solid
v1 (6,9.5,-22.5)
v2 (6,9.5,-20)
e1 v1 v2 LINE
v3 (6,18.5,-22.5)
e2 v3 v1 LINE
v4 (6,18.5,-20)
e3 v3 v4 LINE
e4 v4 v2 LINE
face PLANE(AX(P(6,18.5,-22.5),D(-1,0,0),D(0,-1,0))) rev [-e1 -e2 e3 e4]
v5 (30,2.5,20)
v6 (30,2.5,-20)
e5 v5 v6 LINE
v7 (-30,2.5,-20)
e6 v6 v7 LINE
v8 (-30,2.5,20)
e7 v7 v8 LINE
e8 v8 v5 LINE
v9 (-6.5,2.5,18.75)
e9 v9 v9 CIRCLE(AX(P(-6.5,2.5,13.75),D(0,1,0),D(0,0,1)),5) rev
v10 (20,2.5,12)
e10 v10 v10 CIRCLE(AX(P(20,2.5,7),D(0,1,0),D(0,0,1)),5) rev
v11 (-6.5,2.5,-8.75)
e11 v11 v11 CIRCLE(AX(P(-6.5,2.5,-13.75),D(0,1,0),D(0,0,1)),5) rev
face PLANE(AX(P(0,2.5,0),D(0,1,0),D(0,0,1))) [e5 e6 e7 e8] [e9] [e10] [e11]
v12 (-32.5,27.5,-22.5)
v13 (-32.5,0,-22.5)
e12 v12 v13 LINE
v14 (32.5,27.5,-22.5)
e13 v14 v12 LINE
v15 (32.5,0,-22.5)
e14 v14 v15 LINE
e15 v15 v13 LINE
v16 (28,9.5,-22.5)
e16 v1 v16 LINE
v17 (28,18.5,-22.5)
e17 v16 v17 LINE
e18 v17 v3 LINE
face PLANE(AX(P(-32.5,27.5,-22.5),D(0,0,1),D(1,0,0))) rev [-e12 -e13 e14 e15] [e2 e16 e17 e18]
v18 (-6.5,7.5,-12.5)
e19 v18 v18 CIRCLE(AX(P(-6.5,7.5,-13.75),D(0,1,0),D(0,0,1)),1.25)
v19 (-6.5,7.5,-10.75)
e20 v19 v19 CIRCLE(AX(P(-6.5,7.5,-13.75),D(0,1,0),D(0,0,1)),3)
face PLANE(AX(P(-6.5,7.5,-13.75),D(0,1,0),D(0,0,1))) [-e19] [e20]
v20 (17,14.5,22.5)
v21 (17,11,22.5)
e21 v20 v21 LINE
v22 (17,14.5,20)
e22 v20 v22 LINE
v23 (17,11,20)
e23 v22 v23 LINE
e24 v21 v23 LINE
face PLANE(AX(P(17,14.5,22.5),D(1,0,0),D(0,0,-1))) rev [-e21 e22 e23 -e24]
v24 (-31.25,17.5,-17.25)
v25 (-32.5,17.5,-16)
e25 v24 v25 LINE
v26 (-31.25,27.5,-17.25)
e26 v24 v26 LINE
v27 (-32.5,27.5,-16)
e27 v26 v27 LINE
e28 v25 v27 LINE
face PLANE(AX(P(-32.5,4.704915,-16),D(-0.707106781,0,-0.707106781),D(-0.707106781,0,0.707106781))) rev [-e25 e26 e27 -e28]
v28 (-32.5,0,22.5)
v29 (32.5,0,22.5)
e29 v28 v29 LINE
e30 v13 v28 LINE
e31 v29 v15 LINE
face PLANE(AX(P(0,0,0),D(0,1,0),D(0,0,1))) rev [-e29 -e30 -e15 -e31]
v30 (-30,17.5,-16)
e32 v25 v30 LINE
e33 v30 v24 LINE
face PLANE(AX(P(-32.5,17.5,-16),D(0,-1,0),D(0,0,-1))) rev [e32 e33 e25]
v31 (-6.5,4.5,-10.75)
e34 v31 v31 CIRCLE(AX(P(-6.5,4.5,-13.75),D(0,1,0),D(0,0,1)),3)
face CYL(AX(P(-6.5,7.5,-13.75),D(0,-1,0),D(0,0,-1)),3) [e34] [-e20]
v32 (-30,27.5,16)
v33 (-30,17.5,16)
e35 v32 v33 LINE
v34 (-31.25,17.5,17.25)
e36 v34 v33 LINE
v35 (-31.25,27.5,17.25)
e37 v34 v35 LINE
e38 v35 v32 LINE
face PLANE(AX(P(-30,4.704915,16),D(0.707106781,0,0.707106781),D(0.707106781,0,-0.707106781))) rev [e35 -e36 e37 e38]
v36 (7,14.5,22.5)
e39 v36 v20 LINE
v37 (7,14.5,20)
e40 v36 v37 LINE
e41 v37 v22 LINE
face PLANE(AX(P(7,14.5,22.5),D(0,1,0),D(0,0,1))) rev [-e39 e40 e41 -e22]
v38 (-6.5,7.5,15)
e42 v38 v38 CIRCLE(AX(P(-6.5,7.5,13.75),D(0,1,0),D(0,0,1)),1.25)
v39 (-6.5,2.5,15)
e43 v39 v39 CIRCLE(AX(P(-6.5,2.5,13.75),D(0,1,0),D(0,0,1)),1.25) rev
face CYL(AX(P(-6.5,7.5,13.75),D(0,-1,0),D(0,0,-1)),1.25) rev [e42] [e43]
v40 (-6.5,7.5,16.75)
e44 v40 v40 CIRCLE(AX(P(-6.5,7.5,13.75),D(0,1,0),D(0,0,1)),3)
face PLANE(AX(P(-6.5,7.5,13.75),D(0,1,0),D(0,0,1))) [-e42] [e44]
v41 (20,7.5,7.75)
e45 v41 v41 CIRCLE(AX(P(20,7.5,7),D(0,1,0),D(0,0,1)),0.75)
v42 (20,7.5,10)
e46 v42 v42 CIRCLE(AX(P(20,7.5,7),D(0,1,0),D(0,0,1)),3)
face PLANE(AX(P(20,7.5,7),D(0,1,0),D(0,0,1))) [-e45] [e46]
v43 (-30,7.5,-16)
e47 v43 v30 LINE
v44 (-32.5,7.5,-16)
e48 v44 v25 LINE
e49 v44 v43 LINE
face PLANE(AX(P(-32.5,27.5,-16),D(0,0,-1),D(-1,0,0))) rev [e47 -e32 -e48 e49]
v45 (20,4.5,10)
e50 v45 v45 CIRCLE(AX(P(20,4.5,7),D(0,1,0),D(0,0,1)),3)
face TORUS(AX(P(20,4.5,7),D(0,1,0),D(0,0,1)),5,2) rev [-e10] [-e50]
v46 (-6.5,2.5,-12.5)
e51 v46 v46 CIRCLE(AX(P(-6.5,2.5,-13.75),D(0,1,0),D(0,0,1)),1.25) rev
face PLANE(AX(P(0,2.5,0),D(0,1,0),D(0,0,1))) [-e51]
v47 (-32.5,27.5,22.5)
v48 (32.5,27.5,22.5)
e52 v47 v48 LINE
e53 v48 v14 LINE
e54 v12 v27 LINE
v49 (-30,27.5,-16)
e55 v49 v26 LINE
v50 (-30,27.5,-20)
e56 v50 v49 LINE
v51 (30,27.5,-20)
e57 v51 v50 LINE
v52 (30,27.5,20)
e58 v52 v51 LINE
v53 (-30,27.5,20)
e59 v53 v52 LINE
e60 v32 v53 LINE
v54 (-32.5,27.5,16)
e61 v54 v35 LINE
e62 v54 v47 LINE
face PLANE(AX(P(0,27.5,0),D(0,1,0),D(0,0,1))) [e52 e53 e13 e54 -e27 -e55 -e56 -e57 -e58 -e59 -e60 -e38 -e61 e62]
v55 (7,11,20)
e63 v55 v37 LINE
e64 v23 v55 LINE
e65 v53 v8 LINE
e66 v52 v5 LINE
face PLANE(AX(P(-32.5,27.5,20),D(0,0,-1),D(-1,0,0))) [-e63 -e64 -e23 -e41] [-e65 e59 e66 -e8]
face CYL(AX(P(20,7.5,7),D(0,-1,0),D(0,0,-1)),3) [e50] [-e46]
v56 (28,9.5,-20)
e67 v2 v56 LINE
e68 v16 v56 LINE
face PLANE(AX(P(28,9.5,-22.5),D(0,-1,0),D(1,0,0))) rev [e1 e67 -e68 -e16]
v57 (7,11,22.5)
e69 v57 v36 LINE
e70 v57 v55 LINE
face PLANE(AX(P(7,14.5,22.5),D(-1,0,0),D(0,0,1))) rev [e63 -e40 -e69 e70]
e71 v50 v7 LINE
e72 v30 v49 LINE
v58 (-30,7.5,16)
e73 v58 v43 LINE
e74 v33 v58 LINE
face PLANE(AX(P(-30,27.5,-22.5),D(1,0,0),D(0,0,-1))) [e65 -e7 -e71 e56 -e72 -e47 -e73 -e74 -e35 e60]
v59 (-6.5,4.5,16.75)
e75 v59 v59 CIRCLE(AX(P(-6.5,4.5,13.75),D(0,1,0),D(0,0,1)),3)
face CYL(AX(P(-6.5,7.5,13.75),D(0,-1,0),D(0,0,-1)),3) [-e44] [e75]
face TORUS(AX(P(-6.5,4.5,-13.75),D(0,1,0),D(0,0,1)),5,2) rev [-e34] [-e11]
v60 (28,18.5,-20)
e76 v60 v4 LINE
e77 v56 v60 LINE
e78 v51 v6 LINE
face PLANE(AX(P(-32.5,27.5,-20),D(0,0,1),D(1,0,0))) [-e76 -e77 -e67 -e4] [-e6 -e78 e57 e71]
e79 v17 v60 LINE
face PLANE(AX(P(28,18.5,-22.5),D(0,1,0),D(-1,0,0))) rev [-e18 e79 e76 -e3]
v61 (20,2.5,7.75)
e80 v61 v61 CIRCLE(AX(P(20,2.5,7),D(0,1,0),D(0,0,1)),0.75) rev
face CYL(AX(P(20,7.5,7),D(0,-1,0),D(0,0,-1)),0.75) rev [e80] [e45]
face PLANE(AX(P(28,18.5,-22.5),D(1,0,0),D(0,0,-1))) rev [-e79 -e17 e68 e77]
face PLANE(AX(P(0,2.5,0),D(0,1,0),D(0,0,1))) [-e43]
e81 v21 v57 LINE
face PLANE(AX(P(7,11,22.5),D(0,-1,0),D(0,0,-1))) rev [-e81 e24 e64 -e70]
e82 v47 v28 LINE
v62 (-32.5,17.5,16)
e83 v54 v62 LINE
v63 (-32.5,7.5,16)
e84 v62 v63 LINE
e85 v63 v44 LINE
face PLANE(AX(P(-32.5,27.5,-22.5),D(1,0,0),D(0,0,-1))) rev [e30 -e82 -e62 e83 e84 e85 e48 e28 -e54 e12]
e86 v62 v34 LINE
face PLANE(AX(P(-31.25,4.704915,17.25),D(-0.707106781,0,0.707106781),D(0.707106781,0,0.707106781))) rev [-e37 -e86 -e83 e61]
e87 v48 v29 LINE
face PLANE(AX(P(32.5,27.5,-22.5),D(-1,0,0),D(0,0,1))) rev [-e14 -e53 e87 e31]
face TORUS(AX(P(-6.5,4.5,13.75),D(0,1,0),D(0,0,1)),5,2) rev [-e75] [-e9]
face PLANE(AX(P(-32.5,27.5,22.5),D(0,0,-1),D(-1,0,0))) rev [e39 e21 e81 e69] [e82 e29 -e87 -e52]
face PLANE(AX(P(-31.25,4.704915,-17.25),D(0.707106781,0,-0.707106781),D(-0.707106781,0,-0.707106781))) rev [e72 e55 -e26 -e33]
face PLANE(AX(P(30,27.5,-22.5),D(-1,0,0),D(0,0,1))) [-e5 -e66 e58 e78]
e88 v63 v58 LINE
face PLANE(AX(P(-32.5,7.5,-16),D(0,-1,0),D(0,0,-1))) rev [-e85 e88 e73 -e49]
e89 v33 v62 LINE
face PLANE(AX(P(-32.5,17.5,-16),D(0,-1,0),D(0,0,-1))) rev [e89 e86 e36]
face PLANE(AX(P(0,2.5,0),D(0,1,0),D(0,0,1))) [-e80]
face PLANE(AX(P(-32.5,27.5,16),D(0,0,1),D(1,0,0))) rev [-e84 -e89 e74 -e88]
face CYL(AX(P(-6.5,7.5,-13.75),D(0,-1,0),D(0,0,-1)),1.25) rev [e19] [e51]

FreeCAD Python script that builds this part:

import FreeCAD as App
import Part
import Sketcher
from FreeCAD import Vector
Q = App.Units.Quantity


def edges_at(feature, points):
    """Names of the edges that pass closest to the given points."""
    edges = feature.Shape.Edges
    near = lambda p: min(range(len(edges)), key=lambda i: edges[i].distToShape(Part.Vertex(*p))[0])
    return sorted({f"Edge{near(p) + 1}" for p in points})


def faces_at(feature, points):
    """Names of the faces that lie closest to the given points."""
    faces = feature.Shape.Faces
    near = lambda p: min(range(len(faces)), key=lambda i: faces[i].distToShape(Part.Vertex(*p))[0])
    return sorted({f"Face{near(p) + 1}" for p in points})

doc = App.newDocument("Part")
body = doc.addObject("PartDesign::Body", "Body")

sketch1 = body.newObject("Sketcher::SketchObject", "Sketch")
sketch1.AttachmentSupport = (doc.getObject("XZ_Plane"), [""])
sketch1.MapMode = "FlatFace"
sketch1.addGeometry([
    Part.LineSegment(Vector(-32, -22, 0), Vector(-32, 22, 0)),
    Part.LineSegment(Vector(-32, 22, 0), Vector(32, 22, 0)),
    Part.LineSegment(Vector(32, 22, 0), Vector(32, -22, 0)),
    Part.LineSegment(Vector(32, -22, 0), Vector(-32, -22, 0)),
], False)
sketch1.addConstraint([
    Sketcher.Constraint("Coincident", 0, 2, 1, 1),
    Sketcher.Constraint("Coincident", 1, 2, 2, 1),
    Sketcher.Constraint("Coincident", 2, 2, 3, 1),
    Sketcher.Constraint("Coincident", 3, 2, 0, 1),
    Sketcher.Constraint("Vertical", 0),
    Sketcher.Constraint("Horizontal", 1),
    Sketcher.Constraint("Vertical", 2),
    Sketcher.Constraint("Horizontal", 3),
    Sketcher.Constraint("Symmetric", 0, 2, 2, 2, -1, 1),
    Sketcher.Constraint("DistanceX", 1, 1, 1, 2, Q("65 mm")),
    Sketcher.Constraint("DistanceY", 0, 1, 0, 2, Q("45 mm")),
])
pad1 = body.newObject("PartDesign::Pad", "Pad")
pad1.Profile = sketch1
pad1.Length = 27.5
pad1.Reversed = True
doc.recompute()

thickness = body.newObject("PartDesign::Thickness", "Thickness")
thickness.Base = (pad1, faces_at(pad1, [(0, 27.5, 0)]))
thickness.Value = 2.5
thickness.Reversed = True
thickness.Join = "Intersection"

sketch2 = body.newObject("Sketcher::SketchObject", "Sketch001")
sketch2.AttachmentSupport = (doc.getObject("YZ_Plane"), [""])
sketch2.MapMode = "FlatFace"
sketch2.AttachmentOffset = App.Placement(Vector(0, 0, -30), App.Rotation())
sketch2.addGeometry([
    Part.LineSegment(Vector(28, 16, 0), Vector(8, 16, 0)),
    Part.LineSegment(Vector(8, 16, 0), Vector(8, -16, 0)),
    Part.LineSegment(Vector(8, -16, 0), Vector(28, -16, 0)),
    Part.LineSegment(Vector(28, -16, 0), Vector(28, 16, 0)),
], False)
sketch2.addConstraint([
    Sketcher.Constraint("Coincident", 0, 2, 1, 1),
    Sketcher.Constraint("Coincident", 1, 2, 2, 1),
    Sketcher.Constraint("Coincident", 2, 2, 3, 1),
    Sketcher.Constraint("Coincident", 3, 2, 0, 1),
    Sketcher.Constraint("Horizontal", 0),
    Sketcher.Constraint("Vertical", 1),
    Sketcher.Constraint("Horizontal", 2),
    Sketcher.Constraint("Vertical", 3),
    Sketcher.Constraint("DistanceX", 0, 2, 0, 1, Q("20 mm")),
    Sketcher.Constraint("DistanceY", 1, 2, 1, 1, Q("32 mm")),
    Sketcher.Constraint("DistanceY", -1, 1, 0, 2, Q("16 mm")),
    Sketcher.Constraint("DistanceX", -1, 1, 0, 2, Q("7.5 mm")),
])
pocket1 = body.newObject("PartDesign::Pocket", "Pocket")
pocket1.Profile = sketch2
pocket1.Type = "ThroughAll"

sketch3 = body.newObject("Sketcher::SketchObject", "Sketch002")
sketch3.AttachmentSupport = (doc.getObject("XZ_Plane"), [""])
sketch3.MapMode = "FlatFace"
sketch3.AttachmentOffset = App.Placement(Vector(0, 0, -27.5), App.Rotation())
sketch3.addGeometry([
    Part.LineSegment(Vector(-31.2, -17.2, 0), Vector(-32.5, -16, 0)),
    Part.LineSegment(Vector(-32.5, -16, 0), Vector(-30, -16, 0)),
    Part.LineSegment(Vector(-30, -16, 0), Vector(-31.2, -17.2, 0)),
    Part.LineSegment(Vector(-30, 16, 0), Vector(-32.5, 16, 0)),
    Part.LineSegment(Vector(-32.5, 16, 0), Vector(-31.2, 17.2, 0)),
    Part.LineSegment(Vector(-31.2, 17.2, 0), Vector(-30, 16, 0)),
], False)
sketch3.addConstraint([
    Sketcher.Constraint("Coincident", 0, 2, 1, 1),
    Sketcher.Constraint("Coincident", 1, 2, 2, 1),
    Sketcher.Constraint("Coincident", 2, 2, 0, 1),
    Sketcher.Constraint("Coincident", 3, 2, 4, 1),
    Sketcher.Constraint("Coincident", 4, 2, 5, 1),
    Sketcher.Constraint("Coincident", 5, 2, 3, 1),
    Sketcher.Constraint("Horizontal", 1),
    Sketcher.Constraint("Horizontal", 3),
    Sketcher.Constraint("Symmetric", 0, 2, 3, 2, -1),
    Sketcher.Constraint("Symmetric", 2, 2, 4, 2, -1),
    Sketcher.Constraint("Perpendicular", 0, 2),
    Sketcher.Constraint("Parallel", 2, 4),
    Sketcher.Constraint("Perpendicular", 4, 5),
    Sketcher.Constraint("DistanceX", 1, 1, 1, 2, Q("2.5 mm")),
    Sketcher.Constraint("DistanceY", 0, 2, -1, 1, Q("16 mm")),
    Sketcher.Constraint("DistanceX", 1, 2, -1, 1, Q("30 mm")),
])
pocket2 = body.newObject("PartDesign::Pocket", "Pocket001")
pocket2.Profile = sketch3
pocket2.Length = 10
pocket2.Reversed = True

sketch4 = body.newObject("Sketcher::SketchObject", "Sketch003")
sketch4.AttachmentSupport = (doc.getObject("XZ_Plane"), [""])
sketch4.MapMode = "FlatFace"
sketch4.AttachmentOffset = App.Placement(Vector(0, 0, -2.5), App.Rotation())
sketch4.addGeometry([
    Part.Circle(Vector(-6.5, -13.8, 0), Vector(0, 0, 1), 3),
    Part.Circle(Vector(-6.5, -13.8, 0), Vector(0, 0, 1), 1.2),
    Part.Circle(Vector(-6.5, 13.8, 0), Vector(0, 0, 1), 3),
    Part.Circle(Vector(-6.5, 13.8, 0), Vector(0, 0, 1), 1.2),
], False)
sketch4.addConstraint([
    Sketcher.Constraint("Coincident", 1, 3, 0, 3),
    Sketcher.Constraint("Coincident", 3, 3, 2, 3),
    Sketcher.Constraint("Equal", 0, 2),
    Sketcher.Constraint("Equal", 1, 3),
    Sketcher.Constraint("Symmetric", 0, 3, 2, 3, -1),
    Sketcher.Constraint("Diameter", 0, Q("6 mm")),
    Sketcher.Constraint("Diameter", 1, Q("2.5 mm")),
    Sketcher.Constraint("DistanceX", 0, 3, -1, 1, Q("6.5 mm")),
    Sketcher.Constraint("DistanceY", 0, 3, 2, 3, Q("27.5 mm")),
])
pad2 = body.newObject("PartDesign::Pad", "Pad001")
pad2.Profile = sketch4
pad2.Length = 5
pad2.Reversed = True

sketch5 = body.newObject("Sketcher::SketchObject", "Sketch004")
sketch5.AttachmentSupport = (doc.getObject("XZ_Plane"), [""])
sketch5.MapMode = "FlatFace"
sketch5.AttachmentOffset = App.Placement(Vector(0, 0, -2.5), App.Rotation())
sketch5.addGeometry([
    Part.Circle(Vector(20, 7, 0), Vector(0, 0, 1), 3),
    Part.Circle(Vector(20, 7, 0), Vector(0, 0, 1), 0.8),
], False)
sketch5.addConstraint([
    Sketcher.Constraint("Coincident", 1, 3, 0, 3),
    Sketcher.Constraint("Diameter", 0, Q("6 mm")),
    Sketcher.Constraint("Diameter", 1, Q("1.5 mm")),
    Sketcher.Constraint("DistanceX", -1, 1, 0, 3, Q("20 mm")),
    Sketcher.Constraint("DistanceY", -1, 1, 0, 3, Q("7 mm")),
])
pad3 = body.newObject("PartDesign::Pad", "Pad002")
pad3.Profile = sketch5
pad3.Length = 5
pad3.Reversed = True

sketch6 = body.newObject("Sketcher::SketchObject", "Sketch005")
sketch6.AttachmentSupport = (doc.getObject("XY_Plane"), [""])
sketch6.MapMode = "FlatFace"
sketch6.AttachmentOffset = App.Placement(Vector(0, 0, -20), App.Rotation())
sketch6.addGeometry([
    Part.LineSegment(Vector(6, 18, 0), Vector(6, 10, 0)),
    Part.LineSegment(Vector(6, 10, 0), Vector(28, 10, 0)),
    Part.LineSegment(Vector(28, 10, 0), Vector(28, 18, 0)),
    Part.LineSegment(Vector(28, 18, 0), Vector(6, 18, 0)),
], False)
sketch6.addConstraint([
    Sketcher.Constraint("Coincident", 0, 2, 1, 1),
    Sketcher.Constraint("Coincident", 1, 2, 2, 1),
    Sketcher.Constraint("Coincident", 2, 2, 3, 1),
    Sketcher.Constraint("Coincident", 3, 2, 0, 1),
    Sketcher.Constraint("Vertical", 0),
    Sketcher.Constraint("Horizontal", 1),
    Sketcher.Constraint("Vertical", 2),
    Sketcher.Constraint("Horizontal", 3),
    Sketcher.Constraint("DistanceX", 1, 1, 1, 2, Q("22 mm")),
    Sketcher.Constraint("DistanceY", 0, 2, 0, 1, Q("9 mm")),
    Sketcher.Constraint("DistanceX", -1, 1, 0, 2, Q("6 mm")),
    Sketcher.Constraint("DistanceY", -1, 1, 0, 2, Q("9.5 mm")),
])
pocket3 = body.newObject("PartDesign::Pocket", "Pocket002")
pocket3.Profile = sketch6
pocket3.Type = "ThroughAll"

sketch7 = body.newObject("Sketcher::SketchObject", "Sketch006")
sketch7.AttachmentSupport = (doc.getObject("XY_Plane"), [""])
sketch7.MapMode = "FlatFace"
sketch7.AttachmentOffset = App.Placement(Vector(0, 0, 20), App.Rotation())
sketch7.addGeometry([
    Part.LineSegment(Vector(17, 14.5, 0), Vector(17, 11, 0)),
    Part.LineSegment(Vector(17, 11, 0), Vector(7, 11, 0)),
    Part.LineSegment(Vector(7, 11, 0), Vector(7, 14.5, 0)),
    Part.LineSegment(Vector(7, 14.5, 0), Vector(17, 14.5, 0)),
], False)
sketch7.addConstraint([
    Sketcher.Constraint("Coincident", 0, 2, 1, 1),
    Sketcher.Constraint("Coincident", 1, 2, 2, 1),
    Sketcher.Constraint("Coincident", 2, 2, 3, 1),
    Sketcher.Constraint("Coincident", 3, 2, 0, 1),
    Sketcher.Constraint("Vertical", 0),
    Sketcher.Constraint("Horizontal", 1),
    Sketcher.Constraint("Vertical", 2),
    Sketcher.Constraint("Horizontal", 3),
    Sketcher.Constraint("DistanceX", 1, 2, 1, 1, Q("10 mm")),
    Sketcher.Constraint("DistanceY", 0, 2, 0, 1, Q("3.5 mm")),
    Sketcher.Constraint("DistanceX", -1, 1, 0, 2, Q("17 mm")),
    Sketcher.Constraint("DistanceY", -1, 1, 0, 2, Q("11 mm")),
])
pocket4 = body.newObject("PartDesign::Pocket", "Pocket003")
pocket4.Profile = sketch7
pocket4.Type = "ThroughAll"
pocket4.Reversed = True
doc.recompute()

fillet = body.newObject("PartDesign::Fillet", "Fillet")
fillet.Base = (pocket4, edges_at(pocket4, [(-9.5, 2.5, -13.75), (-9.5, 2.5, 13.75), (17, 2.5, 7)]))
fillet.Radius = 2

doc.recompute()
